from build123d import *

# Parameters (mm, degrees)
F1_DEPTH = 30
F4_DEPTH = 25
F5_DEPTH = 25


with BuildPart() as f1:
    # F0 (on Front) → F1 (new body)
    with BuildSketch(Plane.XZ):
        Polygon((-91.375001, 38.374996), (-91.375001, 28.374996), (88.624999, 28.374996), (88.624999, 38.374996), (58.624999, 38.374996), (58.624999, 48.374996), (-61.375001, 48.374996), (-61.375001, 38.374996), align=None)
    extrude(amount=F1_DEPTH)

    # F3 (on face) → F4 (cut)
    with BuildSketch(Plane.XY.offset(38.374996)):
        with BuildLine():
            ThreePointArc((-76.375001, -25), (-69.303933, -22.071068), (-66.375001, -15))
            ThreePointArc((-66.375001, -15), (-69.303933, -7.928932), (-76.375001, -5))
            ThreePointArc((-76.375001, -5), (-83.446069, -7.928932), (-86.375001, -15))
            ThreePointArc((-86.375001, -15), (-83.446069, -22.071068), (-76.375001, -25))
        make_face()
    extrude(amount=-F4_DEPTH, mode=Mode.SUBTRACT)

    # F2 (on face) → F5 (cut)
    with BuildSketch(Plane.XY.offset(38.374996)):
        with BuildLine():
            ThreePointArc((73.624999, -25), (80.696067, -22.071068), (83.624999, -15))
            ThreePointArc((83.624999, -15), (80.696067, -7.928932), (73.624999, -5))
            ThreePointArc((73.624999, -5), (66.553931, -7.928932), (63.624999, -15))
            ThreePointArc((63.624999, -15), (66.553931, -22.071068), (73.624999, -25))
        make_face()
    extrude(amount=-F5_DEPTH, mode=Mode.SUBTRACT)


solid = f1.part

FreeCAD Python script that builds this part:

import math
import FreeCAD as App
import Part
import Sketcher

V = App.Vector


def add_polygon(sketch, points):
    """Adds a closed chain of lines whose ends are joined by coincident constraints."""
    first, n = sketch.GeometryCount, len(points)
    for a, b in zip(points, points[1:] + points[:1]):
        sketch.addGeometry(Part.LineSegment(App.Vector(*a, 0), App.Vector(*b, 0)), False)
    for i in range(n):
        sketch.addConstraint(Sketcher.Constraint("Coincident", first + i, 2, first + (i + 1) % n, 1))

doc = App.newDocument("Part")
body = doc.addObject("PartDesign::Body", "Body")

sketch1 = doc.addObject("Sketcher::SketchObject", "Sketch")
body.addObject(sketch1)
sketch1.AttachmentSupport = (doc.XZ_Plane, [""])
sketch1.MapMode = "FlatFace"
add_polygon(sketch1, [(-91, 38), (-91, 28), (89, 28), (89, 38), (59, 38), (59, 48), (-61, 48), (-61, 38)])
sketch1.addConstraint([
    Sketcher.Constraint("Vertical", 0),
    Sketcher.Constraint("Horizontal", 1),
    Sketcher.Constraint("Vertical", 2),
    Sketcher.Constraint("Horizontal", 3),
    Sketcher.Constraint("Vertical", 4),
    Sketcher.Constraint("Horizontal", 5),
    Sketcher.Constraint("Vertical", 6),
    Sketcher.Constraint("Horizontal", 7),
    Sketcher.Constraint("Horizontal", 3, 2, 6, 2),
    Sketcher.Constraint("Equal", 3, 7),
    Sketcher.Constraint("Equal", 2, 4),
    Sketcher.Constraint("DistanceX", 1, 1, 1, 2, 180.0),
    Sketcher.Constraint("DistanceX", 3, 2, 3, 1, 30.0),
    Sketcher.Constraint("DistanceY", 0, 2, 0, 1, 10.0),
    Sketcher.Constraint("DistanceX", 0, 2, -1, 1, 91.375001),
    Sketcher.Constraint("DistanceY", -1, 1, 0, 2, 28.374996),
])
pad1 = doc.addObject("PartDesign::Pad", "Pad")
body.addObject(pad1)
pad1.Profile = sketch1
pad1.Length = 30

sketch2 = doc.addObject("Sketcher::SketchObject", "Sketch001")
body.addObject(sketch2)
sketch2.AttachmentSupport = (doc.XY_Plane, [""])
sketch2.MapMode = "FlatFace"
sketch2.AttachmentOffset = App.Placement(V(0, 0, 38.374996), App.Rotation())
sketch2.addGeometry([
    Part.ArcOfCircle(Part.Circle(V(-76, -15, 0), V(0, 0, 1), 10), math.radians(-90), math.radians(0)),
    Part.ArcOfCircle(Part.Circle(V(-76, -15, 0), V(0, 0, 1), 10), math.radians(0), math.radians(90)),
    Part.ArcOfCircle(Part.Circle(V(-76, -15, 0), V(0, 0, 1), 10), math.radians(90), math.radians(180)),
    Part.ArcOfCircle(Part.Circle(V(-76, -15, 0), V(0, 0, 1), 10), math.radians(180), math.radians(270)),
], False)
sketch2.addConstraint([
    Sketcher.Constraint("Tangent", 0, 2, 1, 1),
    Sketcher.Constraint("Tangent", 1, 2, 2, 1),
    Sketcher.Constraint("Tangent", 2, 2, 3, 1),
    Sketcher.Constraint("Tangent", 3, 2, 0, 1),
    Sketcher.Constraint("Equal", 0, 1),
    Sketcher.Constraint("Horizontal", 3, 3, 0, 2),
    Sketcher.Constraint("Horizontal", 0, 2, 2, 2),
    Sketcher.Constraint("Vertical", 3, 3, 1, 2),
    Sketcher.Constraint("Vertical", 1, 2, 3, 2),
    Sketcher.Constraint("Radius", 0, 9.999999),
    Sketcher.Constraint("DistanceY", 0, 3, -1, 1, 15.000001),
    Sketcher.Constraint("DistanceX", 0, 3, -1, 1, 76.375),
])
pocket1 = doc.addObject("PartDesign::Pocket", "Pocket")
body.addObject(pocket1)
pocket1.Profile = sketch2
pocket1.Length = 25

sketch3 = doc.addObject("Sketcher::SketchObject", "Sketch002")
body.addObject(sketch3)
sketch3.AttachmentSupport = (doc.XY_Plane, [""])
sketch3.MapMode = "FlatFace"
sketch3.AttachmentOffset = App.Placement(V(0, 0, 38.374996), App.Rotation())
sketch3.addGeometry([
    Part.ArcOfCircle(Part.Circle(V(74, -15, 0), V(0, 0, 1), 10), math.radians(-90), math.radians(0)),
    Part.ArcOfCircle(Part.Circle(V(74, -15, 0), V(0, 0, 1), 10), math.radians(0), math.radians(90)),
    Part.ArcOfCircle(Part.Circle(V(74, -15, 0), V(0, 0, 1), 10), math.radians(90), math.radians(180)),
    Part.ArcOfCircle(Part.Circle(V(74, -15, 0), V(0, 0, 1), 10), math.radians(180), math.radians(270)),
], False)
sketch3.addConstraint([
    Sketcher.Constraint("Tangent", 0, 2, 1, 1),
    Sketcher.Constraint("Tangent", 1, 2, 2, 1),
    Sketcher.Constraint("Tangent", 2, 2, 3, 1),
    Sketcher.Constraint("Tangent", 3, 2, 0, 1),
    Sketcher.Constraint("Equal", 0, 1),
    Sketcher.Constraint("Horizontal", 3, 3, 0, 2),
    Sketcher.Constraint("Horizontal", 0, 2, 2, 2),
    Sketcher.Constraint("Vertical", 3, 3, 1, 2),
    Sketcher.Constraint("Vertical", 1, 2, 3, 2),
    Sketcher.Constraint("Radius", 0, 9.999999),
    Sketcher.Constraint("DistanceY", 0, 3, -1, 1, 15.000001),
    Sketcher.Constraint("DistanceX", -1, 1, 0, 3, 73.625),
])
pocket2 = doc.addObject("PartDesign::Pocket", "Pocket001")
body.addObject(pocket2)
pocket2.Profile = sketch3
pocket2.Length = 25

doc.recompute()
